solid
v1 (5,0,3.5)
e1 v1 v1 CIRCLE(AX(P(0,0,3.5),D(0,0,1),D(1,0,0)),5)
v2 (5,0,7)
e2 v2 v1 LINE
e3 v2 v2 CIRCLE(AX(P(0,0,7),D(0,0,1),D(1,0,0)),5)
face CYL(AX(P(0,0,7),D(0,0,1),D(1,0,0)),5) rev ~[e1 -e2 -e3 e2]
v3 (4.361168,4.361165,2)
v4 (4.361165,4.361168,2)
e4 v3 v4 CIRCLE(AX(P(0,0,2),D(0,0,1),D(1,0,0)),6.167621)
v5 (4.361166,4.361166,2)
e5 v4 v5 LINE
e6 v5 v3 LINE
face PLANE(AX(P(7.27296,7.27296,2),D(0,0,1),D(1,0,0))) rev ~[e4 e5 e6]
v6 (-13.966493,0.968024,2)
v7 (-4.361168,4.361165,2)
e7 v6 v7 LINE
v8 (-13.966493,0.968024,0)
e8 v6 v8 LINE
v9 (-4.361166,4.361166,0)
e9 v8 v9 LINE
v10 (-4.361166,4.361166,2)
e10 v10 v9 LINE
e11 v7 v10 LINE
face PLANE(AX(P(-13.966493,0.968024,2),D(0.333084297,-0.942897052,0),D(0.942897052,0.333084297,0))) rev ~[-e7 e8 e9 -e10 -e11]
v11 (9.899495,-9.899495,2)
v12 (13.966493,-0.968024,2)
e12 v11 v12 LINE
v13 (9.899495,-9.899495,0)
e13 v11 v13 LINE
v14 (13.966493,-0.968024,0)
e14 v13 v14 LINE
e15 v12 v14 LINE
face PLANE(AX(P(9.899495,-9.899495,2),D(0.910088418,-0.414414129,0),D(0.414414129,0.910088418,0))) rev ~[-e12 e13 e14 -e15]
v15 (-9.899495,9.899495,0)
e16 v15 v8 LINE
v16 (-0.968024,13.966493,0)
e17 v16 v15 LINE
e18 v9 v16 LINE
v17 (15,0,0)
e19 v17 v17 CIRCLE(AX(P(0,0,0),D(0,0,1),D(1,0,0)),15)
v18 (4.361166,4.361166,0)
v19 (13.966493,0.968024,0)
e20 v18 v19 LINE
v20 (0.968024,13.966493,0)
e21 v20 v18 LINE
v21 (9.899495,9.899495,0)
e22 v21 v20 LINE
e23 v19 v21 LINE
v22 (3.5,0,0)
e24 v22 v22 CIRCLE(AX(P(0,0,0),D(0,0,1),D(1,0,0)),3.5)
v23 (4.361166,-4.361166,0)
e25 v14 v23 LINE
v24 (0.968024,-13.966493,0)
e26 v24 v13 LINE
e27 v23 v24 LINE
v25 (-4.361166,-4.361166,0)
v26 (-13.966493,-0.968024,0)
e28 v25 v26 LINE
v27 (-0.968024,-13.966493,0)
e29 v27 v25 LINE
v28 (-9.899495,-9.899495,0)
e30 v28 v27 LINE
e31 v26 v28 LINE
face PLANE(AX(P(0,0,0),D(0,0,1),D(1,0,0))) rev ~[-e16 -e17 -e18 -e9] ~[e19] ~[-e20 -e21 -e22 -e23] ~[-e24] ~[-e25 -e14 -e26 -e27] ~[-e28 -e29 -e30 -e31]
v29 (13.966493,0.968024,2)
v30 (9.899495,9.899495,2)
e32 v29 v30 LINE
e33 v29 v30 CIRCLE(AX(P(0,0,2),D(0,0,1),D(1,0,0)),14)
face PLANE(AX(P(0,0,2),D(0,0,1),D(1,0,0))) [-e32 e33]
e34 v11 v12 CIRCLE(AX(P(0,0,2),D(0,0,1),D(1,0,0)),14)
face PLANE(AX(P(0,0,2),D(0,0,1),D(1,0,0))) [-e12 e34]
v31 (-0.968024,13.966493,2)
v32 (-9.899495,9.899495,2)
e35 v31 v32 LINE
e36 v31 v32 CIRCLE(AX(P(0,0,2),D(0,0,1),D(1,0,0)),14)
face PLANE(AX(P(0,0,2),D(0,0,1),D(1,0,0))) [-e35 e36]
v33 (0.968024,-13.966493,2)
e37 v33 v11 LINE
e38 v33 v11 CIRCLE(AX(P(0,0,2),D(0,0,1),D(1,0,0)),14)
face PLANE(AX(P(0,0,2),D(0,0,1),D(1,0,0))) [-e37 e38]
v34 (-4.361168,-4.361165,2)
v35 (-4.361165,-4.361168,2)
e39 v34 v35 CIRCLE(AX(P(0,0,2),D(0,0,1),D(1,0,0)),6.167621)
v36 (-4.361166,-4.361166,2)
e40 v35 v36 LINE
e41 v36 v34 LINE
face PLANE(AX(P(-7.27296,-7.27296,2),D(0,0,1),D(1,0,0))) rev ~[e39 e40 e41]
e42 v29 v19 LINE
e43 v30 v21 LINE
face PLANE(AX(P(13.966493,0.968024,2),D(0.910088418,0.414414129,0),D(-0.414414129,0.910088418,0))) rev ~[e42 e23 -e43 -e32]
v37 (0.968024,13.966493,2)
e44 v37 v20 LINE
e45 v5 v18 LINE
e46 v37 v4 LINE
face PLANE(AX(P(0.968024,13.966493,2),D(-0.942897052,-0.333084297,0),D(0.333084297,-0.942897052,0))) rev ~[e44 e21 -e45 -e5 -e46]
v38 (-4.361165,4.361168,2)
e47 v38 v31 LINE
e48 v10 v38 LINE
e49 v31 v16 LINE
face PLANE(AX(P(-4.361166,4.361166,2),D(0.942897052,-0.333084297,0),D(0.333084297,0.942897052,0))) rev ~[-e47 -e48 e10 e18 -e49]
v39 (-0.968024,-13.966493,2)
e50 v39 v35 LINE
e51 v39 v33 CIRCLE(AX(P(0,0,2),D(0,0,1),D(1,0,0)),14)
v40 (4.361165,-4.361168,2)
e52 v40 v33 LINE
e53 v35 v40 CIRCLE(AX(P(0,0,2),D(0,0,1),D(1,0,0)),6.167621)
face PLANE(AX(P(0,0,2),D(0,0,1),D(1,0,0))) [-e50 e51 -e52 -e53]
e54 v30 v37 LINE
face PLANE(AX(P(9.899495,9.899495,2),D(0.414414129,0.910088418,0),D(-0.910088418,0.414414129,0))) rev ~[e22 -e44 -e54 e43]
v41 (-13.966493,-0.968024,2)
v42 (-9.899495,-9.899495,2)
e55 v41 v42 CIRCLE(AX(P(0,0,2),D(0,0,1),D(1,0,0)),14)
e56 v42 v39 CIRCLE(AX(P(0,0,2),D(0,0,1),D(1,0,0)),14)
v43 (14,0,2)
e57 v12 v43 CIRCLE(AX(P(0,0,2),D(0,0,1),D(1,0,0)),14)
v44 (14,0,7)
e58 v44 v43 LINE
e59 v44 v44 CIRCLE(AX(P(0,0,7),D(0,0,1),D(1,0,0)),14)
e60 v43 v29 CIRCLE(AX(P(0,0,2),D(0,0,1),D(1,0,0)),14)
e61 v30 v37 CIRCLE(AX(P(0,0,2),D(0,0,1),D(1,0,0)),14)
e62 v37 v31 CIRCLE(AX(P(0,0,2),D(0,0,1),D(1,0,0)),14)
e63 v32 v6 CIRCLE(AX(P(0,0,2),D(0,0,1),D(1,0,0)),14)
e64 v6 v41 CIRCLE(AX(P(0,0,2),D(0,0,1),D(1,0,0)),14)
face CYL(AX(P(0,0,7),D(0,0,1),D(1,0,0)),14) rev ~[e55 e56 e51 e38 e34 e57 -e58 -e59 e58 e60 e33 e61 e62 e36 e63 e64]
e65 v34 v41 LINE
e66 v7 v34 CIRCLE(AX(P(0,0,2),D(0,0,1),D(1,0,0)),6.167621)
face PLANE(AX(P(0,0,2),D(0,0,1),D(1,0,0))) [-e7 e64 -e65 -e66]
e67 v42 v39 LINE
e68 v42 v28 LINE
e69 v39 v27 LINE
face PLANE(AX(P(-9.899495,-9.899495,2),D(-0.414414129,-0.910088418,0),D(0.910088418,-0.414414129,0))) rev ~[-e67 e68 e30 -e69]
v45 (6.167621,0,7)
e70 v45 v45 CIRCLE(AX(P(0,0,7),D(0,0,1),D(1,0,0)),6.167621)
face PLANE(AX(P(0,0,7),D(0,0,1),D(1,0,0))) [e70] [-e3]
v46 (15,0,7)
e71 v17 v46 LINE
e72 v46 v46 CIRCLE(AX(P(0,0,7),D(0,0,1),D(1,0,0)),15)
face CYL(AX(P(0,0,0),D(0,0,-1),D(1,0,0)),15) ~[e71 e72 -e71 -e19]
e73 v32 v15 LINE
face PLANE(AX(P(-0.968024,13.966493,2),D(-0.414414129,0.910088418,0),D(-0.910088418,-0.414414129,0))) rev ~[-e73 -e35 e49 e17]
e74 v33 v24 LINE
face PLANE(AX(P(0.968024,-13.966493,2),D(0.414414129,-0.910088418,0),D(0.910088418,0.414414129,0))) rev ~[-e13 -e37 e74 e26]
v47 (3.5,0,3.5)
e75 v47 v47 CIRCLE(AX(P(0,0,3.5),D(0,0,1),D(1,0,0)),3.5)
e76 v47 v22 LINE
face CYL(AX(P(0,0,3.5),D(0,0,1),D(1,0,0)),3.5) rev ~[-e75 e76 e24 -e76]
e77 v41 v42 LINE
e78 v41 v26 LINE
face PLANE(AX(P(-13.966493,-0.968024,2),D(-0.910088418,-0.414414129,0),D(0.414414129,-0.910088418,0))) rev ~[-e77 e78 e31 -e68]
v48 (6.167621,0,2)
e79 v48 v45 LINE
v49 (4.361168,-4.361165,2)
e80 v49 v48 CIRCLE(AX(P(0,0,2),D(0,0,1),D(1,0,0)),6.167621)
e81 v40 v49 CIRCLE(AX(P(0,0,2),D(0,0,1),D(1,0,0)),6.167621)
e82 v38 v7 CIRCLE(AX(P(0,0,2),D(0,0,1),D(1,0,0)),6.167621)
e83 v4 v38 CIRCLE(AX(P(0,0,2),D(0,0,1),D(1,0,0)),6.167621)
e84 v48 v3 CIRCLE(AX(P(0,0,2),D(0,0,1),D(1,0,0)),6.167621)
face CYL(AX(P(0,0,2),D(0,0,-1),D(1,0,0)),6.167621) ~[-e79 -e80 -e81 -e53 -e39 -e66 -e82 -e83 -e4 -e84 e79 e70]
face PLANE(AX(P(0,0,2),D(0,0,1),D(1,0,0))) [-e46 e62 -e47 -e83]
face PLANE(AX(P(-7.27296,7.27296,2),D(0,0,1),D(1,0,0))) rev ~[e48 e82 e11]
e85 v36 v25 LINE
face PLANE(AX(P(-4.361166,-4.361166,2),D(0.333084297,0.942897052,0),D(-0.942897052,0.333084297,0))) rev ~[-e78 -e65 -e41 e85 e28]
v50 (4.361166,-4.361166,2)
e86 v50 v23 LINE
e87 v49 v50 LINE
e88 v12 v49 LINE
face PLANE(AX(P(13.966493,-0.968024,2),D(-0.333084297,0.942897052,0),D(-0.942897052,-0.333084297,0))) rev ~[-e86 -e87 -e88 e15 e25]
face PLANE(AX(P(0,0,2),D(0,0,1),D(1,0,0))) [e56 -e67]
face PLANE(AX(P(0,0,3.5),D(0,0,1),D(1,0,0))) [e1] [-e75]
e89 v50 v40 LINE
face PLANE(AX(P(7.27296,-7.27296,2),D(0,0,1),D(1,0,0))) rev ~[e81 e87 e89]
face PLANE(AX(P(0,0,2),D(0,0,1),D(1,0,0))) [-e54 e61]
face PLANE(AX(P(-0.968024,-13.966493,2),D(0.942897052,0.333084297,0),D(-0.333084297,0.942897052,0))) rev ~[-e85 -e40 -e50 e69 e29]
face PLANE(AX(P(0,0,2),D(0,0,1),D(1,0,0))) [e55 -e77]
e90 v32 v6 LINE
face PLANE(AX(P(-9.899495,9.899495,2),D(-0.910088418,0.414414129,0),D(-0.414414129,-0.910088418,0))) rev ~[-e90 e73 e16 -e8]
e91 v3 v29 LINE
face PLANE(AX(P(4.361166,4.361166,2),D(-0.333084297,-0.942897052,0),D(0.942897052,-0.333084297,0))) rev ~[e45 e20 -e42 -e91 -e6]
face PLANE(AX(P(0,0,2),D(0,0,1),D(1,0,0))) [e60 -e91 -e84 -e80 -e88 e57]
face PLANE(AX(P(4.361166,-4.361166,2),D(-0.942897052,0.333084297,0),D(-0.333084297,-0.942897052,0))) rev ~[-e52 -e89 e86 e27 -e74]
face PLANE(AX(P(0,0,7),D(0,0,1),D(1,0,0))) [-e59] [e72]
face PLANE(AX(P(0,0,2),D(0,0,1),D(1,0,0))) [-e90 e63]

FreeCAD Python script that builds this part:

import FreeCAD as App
import Part
import Sketcher
from FreeCAD import Vector

doc = App.newDocument("Part")
body = doc.addObject("PartDesign::Body", "Body")

# Sketch on XY plane
sketch1 = body.newObject("Sketcher::SketchObject", "Sketch")
sketch1.AttachmentSupport = (doc.getObject("XY_Plane"), [""])
sketch1.MapMode = "FlatFace"
sketch1.addGeometry(Part.Circle(Vector(0, 0, 0), Vector(0, 0, 1), 15), False)
sketch1.addConstraint([
    Sketcher.Constraint("Coincident", 0, 3, -1, 1),
    Sketcher.Constraint("Diameter", 0, 30.0),
])
pad1 = body.newObject("PartDesign::Pad", "Pad")
pad1.Profile = sketch1
pad1.Length = 7

# Sketch on XY plane
sketch2 = body.newObject("Sketcher::SketchObject", "Sketch001")
sketch2.AttachmentSupport = (doc.getObject("XY_Plane"), [""])
sketch2.MapMode = "FlatFace"
sketch2.AttachmentOffset = App.Placement(Vector(0, 0, 7), App.Rotation())
sketch2.addGeometry(Part.Circle(Vector(0, 0, 0), Vector(0, 0, 1), 14), False)
sketch2.addConstraint([
    Sketcher.Constraint("Coincident", 0, 3, -1, 1),
    Sketcher.Constraint("Diameter", 0, 28.0),
])
pocket1 = body.newObject("PartDesign::Pocket", "Pocket")
pocket1.Profile = sketch2
pocket1.Length = 5

# Sketch on XY plane
sketch3 = body.newObject("Sketcher::SketchObject", "Sketch002")
sketch3.AttachmentSupport = (doc.getObject("XY_Plane"), [""])
sketch3.MapMode = "FlatFace"
sketch3.AttachmentOffset = App.Placement(Vector(0, 0, 2), App.Rotation())
sketch3.addGeometry(Part.Circle(Vector(0, 0, 0), Vector(0, 0, 1), 6.167621), False)
sketch3.addConstraint([
    Sketcher.Constraint("Coincident", 0, 3, -1, 1),
    Sketcher.Constraint("Diameter", 0, 12.335242),
])
pad2 = body.newObject("PartDesign::Pad", "Pad001")
pad2.Profile = sketch3
pad2.Length = 5

# Sketch on XY plane
sketch4 = body.newObject("Sketcher::SketchObject", "Sketch003")
sketch4.AttachmentSupport = (doc.getObject("XY_Plane"), [""])
sketch4.MapMode = "FlatFace"
sketch4.AttachmentOffset = App.Placement(Vector(0, 0, 7), App.Rotation())
sketch4.addGeometry(Part.Circle(Vector(0, 0, 0), Vector(0, 0, 1), 5), False)
sketch4.addConstraint([
    Sketcher.Constraint("Coincident", 0, 3, -1, 1),
    Sketcher.Constraint("Diameter", 0, 10.0),
])
pocket2 = body.newObject("PartDesign::Pocket", "Pocket001")
pocket2.Profile = sketch4
pocket2.Length = 3.5

# Sketch on XY plane
sketch5 = body.newObject("Sketcher::SketchObject", "Sketch004")
sketch5.AttachmentSupport = (doc.getObject("XY_Plane"), [""])
sketch5.MapMode = "FlatFace"
sketch5.AttachmentOffset = App.Placement(Vector(0, 0, 3.5), App.Rotation())
sketch5.addGeometry(Part.Circle(Vector(0, 0, 0), Vector(0, 0, 1), 3.5), False)
sketch5.addConstraint([
    Sketcher.Constraint("Coincident", 0, 3, -1, 1),
    Sketcher.Constraint("Diameter", 0, 7.0),
])
pocket3 = body.newObject("PartDesign::Pocket", "Pocket002")
pocket3.Profile = sketch5
pocket3.Type = "ThroughAll"

# Sketch on XY plane
sketch6 = body.newObject("Sketcher::SketchObject", "Sketch005")
sketch6.AttachmentSupport = (doc.getObject("XY_Plane"), [""])
sketch6.MapMode = "FlatFace"
sketch6.AttachmentOffset = App.Placement(Vector(0, 0, 2), App.Rotation())
sketch6.addGeometry([
    Part.LineSegment(Vector(0.968024, 13.966493, 0), Vector(4.361166, 4.361166, 0)),  # 0
    Part.LineSegment(Vector(4.361166, 4.361166, 0), Vector(13.966493, 0.968024, 0)),  # 1
    Part.LineSegment(Vector(13.966493, 0.968024, 0), Vector(9.899495, 9.899495, 0)),  # 2
    Part.LineSegment(Vector(9.899495, 9.899495, 0), Vector(0.968024, 13.966493, 0)),  # 3
    Part.LineSegment(Vector(-13.966493, 0.968024, 0), Vector(-4.361166, 4.361166, 0)),  # 4
    Part.LineSegment(Vector(-4.361166, 4.361166, 0), Vector(-0.968024, 13.966493, 0)),  # 5
    Part.LineSegment(Vector(-0.968024, 13.966493, 0), Vector(-9.899495, 9.899495, 0)),  # 6
    Part.LineSegment(Vector(-9.899495, 9.899495, 0), Vector(-13.966493, 0.968024, 0)),  # 7
    Part.LineSegment(Vector(-0.968024, -13.966493, 0), Vector(-4.361166, -4.361166, 0)),  # 8
    Part.LineSegment(Vector(-4.361166, -4.361166, 0), Vector(-13.966493, -0.968024, 0)),  # 9
    Part.LineSegment(Vector(-13.966493, -0.968024, 0), Vector(-9.899495, -9.899495, 0)),  # 10
    Part.LineSegment(Vector(-9.899495, -9.899495, 0), Vector(-0.968024, -13.966493, 0)),  # 11
    Part.LineSegment(Vector(13.966493, -0.968024, 0), Vector(4.361166, -4.361166, 0)),  # 12
    Part.LineSegment(Vector(4.361166, -4.361166, 0), Vector(0.968024, -13.966493, 0)),  # 13
    Part.LineSegment(Vector(0.968024, -13.966493, 0), Vector(9.899495, -9.899495, 0)),  # 14
    Part.LineSegment(Vector(9.899495, -9.899495, 0), Vector(13.966493, -0.968024, 0)),  # 15
], False)
sketch6.addConstraint([
    Sketcher.Constraint("Coincident", 0, 2, 1, 1),
    Sketcher.Constraint("Coincident", 1, 2, 2, 1),
    Sketcher.Constraint("Coincident", 2, 2, 3, 1),
    Sketcher.Constraint("Coincident", 3, 2, 0, 1),
    Sketcher.Constraint("Coincident", 4, 2, 5, 1),
    Sketcher.Constraint("Coincident", 5, 2, 6, 1),
    Sketcher.Constraint("Coincident", 6, 2, 7, 1),
    Sketcher.Constraint("Coincident", 7, 2, 4, 1),
    Sketcher.Constraint("Coincident", 8, 2, 9, 1),
    Sketcher.Constraint("Coincident", 9, 2, 10, 1),
    Sketcher.Constraint("Coincident", 10, 2, 11, 1),
    Sketcher.Constraint("Coincident", 11, 2, 8, 1),
    Sketcher.Constraint("Coincident", 12, 2, 13, 1),
    Sketcher.Constraint("Coincident", 13, 2, 14, 1),
    Sketcher.Constraint("Coincident", 14, 2, 15, 1),
    Sketcher.Constraint("Coincident", 15, 2, 12, 1),
    Sketcher.Constraint("Symmetric", 0, 2, 8, 2, -1, 1),
    Sketcher.Constraint("Symmetric", 1, 2, 9, 2, -1, 1),
    Sketcher.Constraint("Symmetric", 2, 2, 10, 2, -1, 1),
    Sketcher.Constraint("Symmetric", 3, 2, 11, 2, -1, 1),
    Sketcher.Constraint("Symmetric", 4, 2, 12, 2, -1, 1),
    Sketcher.Constraint("Symmetric", 5, 2, 13, 2, -1, 1),
    Sketcher.Constraint("Symmetric", 6, 2, 14, 2, -1, 1),
    Sketcher.Constraint("Symmetric", 7, 2, 15, 2, -1, 1),
    Sketcher.Constraint("Symmetric", 0, 2, 4, 2, -2),
    Sketcher.Constraint("Symmetric", 3, 2, 5, 2, -2),
    Sketcher.Constraint("Symmetric", 2, 2, 6, 2, -2),
    Sketcher.Constraint("Symmetric", 1, 2, 7, 2, -2),
    Sketcher.Constraint("Perpendicular", 0, 4),
    Sketcher.Constraint("Perpendicular", 2, 6),
    Sketcher.Constraint("Equal", 0, 1),
    Sketcher.Constraint("Distance", 2, 9.81385),
    Sketcher.Constraint("DistanceX", 0, 2, 2, 2, 5.538329),
    Sketcher.Constraint("DistanceY", 1, 2, 2, 2, 8.931471),
    Sketcher.Constraint("DistanceX", 4, 2, 3, 2, 5.32919),
    Sketcher.Constraint("DistanceY", 8, 2, 7, 2, 5.32919),
])
pocket4 = body.newObject("PartDesign::Pocket", "Pocket003")
pocket4.Profile = sketch6
pocket4.Type = "ThroughAll"

doc.recompute()
